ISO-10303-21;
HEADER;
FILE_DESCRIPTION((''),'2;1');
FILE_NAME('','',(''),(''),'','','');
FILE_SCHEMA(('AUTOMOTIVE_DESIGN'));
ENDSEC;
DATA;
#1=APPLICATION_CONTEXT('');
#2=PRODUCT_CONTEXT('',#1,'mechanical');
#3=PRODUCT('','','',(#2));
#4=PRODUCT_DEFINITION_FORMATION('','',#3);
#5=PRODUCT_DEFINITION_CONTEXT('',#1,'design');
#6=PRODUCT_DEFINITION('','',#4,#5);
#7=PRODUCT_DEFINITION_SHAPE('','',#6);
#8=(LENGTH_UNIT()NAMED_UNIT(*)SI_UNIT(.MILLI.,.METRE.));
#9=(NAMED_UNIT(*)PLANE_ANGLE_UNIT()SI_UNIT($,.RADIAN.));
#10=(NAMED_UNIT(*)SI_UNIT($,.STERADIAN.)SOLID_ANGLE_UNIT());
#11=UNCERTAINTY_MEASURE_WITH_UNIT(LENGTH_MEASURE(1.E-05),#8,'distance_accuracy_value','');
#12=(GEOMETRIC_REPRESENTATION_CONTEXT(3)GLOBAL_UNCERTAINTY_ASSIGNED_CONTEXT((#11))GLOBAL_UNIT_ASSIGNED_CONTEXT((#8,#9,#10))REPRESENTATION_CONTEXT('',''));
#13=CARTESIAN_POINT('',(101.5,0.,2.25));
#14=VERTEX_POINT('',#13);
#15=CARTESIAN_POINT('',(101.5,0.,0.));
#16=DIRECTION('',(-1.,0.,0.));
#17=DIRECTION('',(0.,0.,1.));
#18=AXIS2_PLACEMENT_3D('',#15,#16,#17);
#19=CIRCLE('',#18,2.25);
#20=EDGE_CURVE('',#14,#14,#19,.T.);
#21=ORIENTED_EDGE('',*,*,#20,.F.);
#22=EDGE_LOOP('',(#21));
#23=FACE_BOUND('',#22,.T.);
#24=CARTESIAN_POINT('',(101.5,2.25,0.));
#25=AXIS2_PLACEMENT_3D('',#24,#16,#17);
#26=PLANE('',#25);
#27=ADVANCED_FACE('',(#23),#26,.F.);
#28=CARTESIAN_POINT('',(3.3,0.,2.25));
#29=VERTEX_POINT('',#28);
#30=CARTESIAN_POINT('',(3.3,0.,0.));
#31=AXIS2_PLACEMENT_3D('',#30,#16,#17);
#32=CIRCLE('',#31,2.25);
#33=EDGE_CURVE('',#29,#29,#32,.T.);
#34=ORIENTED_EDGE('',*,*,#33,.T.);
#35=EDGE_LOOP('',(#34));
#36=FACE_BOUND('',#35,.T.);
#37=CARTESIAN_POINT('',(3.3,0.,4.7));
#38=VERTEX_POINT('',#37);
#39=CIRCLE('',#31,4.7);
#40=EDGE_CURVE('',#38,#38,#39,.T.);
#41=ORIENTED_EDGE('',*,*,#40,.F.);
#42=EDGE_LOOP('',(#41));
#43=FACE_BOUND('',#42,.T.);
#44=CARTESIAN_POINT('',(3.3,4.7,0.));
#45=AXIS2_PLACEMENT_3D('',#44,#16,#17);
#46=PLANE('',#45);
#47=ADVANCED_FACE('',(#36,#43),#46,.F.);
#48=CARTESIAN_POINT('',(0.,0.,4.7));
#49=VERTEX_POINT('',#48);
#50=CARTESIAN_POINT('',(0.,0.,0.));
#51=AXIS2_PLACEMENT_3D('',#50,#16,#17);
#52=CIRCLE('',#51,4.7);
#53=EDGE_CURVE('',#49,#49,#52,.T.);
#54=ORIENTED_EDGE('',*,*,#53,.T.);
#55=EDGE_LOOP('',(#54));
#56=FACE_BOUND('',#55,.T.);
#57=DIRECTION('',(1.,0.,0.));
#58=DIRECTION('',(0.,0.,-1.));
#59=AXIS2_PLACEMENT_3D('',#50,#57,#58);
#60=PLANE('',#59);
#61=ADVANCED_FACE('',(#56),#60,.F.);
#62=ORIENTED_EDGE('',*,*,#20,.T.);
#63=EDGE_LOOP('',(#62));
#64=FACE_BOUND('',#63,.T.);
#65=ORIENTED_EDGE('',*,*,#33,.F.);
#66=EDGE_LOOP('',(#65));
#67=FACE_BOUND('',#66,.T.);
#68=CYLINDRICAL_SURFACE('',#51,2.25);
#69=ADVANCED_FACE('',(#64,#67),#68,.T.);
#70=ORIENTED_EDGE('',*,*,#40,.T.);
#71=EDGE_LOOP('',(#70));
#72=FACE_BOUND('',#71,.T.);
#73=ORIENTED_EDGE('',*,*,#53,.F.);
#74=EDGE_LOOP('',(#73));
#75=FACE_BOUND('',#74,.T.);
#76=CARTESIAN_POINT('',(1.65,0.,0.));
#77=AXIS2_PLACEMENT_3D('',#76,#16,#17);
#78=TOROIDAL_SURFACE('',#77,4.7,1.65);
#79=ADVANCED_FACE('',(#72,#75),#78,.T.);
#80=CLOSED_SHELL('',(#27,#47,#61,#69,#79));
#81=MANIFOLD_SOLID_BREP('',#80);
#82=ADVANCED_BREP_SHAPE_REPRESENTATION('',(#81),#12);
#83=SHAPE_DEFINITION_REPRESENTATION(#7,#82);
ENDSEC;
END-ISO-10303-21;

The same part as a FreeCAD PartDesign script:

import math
import FreeCAD as App
import Part
import Sketcher

doc = App.newDocument("Part")
body = doc.addObject("PartDesign::Body", "Body")

# Sketch on XY plane
sketch1 = body.newObject("Sketcher::SketchObject", "Sketch")
sketch1.AttachmentSupport = (doc.getObject("XY_Plane"), [""])
sketch1.MapMode = "FlatFace"
sketch1.addGeometry(Part.LineSegment(App.Vector(0, 4.7, 0), App.Vector(0, 0, 0)), False)
sketch1.addGeometry(Part.LineSegment(App.Vector(0, 0, 0), App.Vector(101.5, 0, 0)), False)
sketch1.addGeometry(Part.LineSegment(App.Vector(101.5, 0, 0), App.Vector(101.5, 2.2, 0)), False)
sketch1.addGeometry(Part.LineSegment(App.Vector(101.5, 2.2, 0), App.Vector(3.3, 2.2, 0)), False)
sketch1.addGeometry(Part.LineSegment(App.Vector(3.3, 2.2, 0), App.Vector(3.3, 4.7, 0)), False)
sketch1.addGeometry(Part.ArcOfCircle(Part.Circle(App.Vector(1.6, 4.7, 0), App.Vector(0, 0, 1), 1.6), math.radians(0), math.radians(180)), False)
sketch1.addConstraint(Sketcher.Constraint("Coincident", 0, 2, 1, 1))
sketch1.addConstraint(Sketcher.Constraint("Coincident", 1, 2, 2, 1))
sketch1.addConstraint(Sketcher.Constraint("Coincident", 2, 2, 3, 1))
sketch1.addConstraint(Sketcher.Constraint("Coincident", 3, 2, 4, 1))
sketch1.addConstraint(Sketcher.Constraint("Tangent", 4, 2, 5, 1))
sketch1.addConstraint(Sketcher.Constraint("Tangent", 5, 2, 0, 1))
sketch1.addConstraint(Sketcher.Constraint("Vertical", 0))
sketch1.addConstraint(Sketcher.Constraint("Horizontal", 1))
sketch1.addConstraint(Sketcher.Constraint("Vertical", 2))
sketch1.addConstraint(Sketcher.Constraint("Horizontal", 3))
sketch1.addConstraint(Sketcher.Constraint("Vertical", 4))
sketch1.addConstraint(Sketcher.Constraint("Coincident", 0, 2, -1, 1))
sketch1.addConstraint(Sketcher.Constraint("Radius", 5, 1.65))
sketch1.addConstraint(Sketcher.Constraint("DistanceX", 1, 1, 1, 2, 101.5))
sketch1.addConstraint(Sketcher.Constraint("DistanceY", 0, 2, 0, 1, 4.7))
sketch1.addConstraint(Sketcher.Constraint("DistanceY", 2, 1, 2, 2, 2.25))
revolution = body.newObject("PartDesign::Revolution", "Revolution")
revolution.Profile = sketch1
revolution.ReferenceAxis = (sketch1, ["H_Axis"])
revolution.Angle = 360

doc.recompute()
